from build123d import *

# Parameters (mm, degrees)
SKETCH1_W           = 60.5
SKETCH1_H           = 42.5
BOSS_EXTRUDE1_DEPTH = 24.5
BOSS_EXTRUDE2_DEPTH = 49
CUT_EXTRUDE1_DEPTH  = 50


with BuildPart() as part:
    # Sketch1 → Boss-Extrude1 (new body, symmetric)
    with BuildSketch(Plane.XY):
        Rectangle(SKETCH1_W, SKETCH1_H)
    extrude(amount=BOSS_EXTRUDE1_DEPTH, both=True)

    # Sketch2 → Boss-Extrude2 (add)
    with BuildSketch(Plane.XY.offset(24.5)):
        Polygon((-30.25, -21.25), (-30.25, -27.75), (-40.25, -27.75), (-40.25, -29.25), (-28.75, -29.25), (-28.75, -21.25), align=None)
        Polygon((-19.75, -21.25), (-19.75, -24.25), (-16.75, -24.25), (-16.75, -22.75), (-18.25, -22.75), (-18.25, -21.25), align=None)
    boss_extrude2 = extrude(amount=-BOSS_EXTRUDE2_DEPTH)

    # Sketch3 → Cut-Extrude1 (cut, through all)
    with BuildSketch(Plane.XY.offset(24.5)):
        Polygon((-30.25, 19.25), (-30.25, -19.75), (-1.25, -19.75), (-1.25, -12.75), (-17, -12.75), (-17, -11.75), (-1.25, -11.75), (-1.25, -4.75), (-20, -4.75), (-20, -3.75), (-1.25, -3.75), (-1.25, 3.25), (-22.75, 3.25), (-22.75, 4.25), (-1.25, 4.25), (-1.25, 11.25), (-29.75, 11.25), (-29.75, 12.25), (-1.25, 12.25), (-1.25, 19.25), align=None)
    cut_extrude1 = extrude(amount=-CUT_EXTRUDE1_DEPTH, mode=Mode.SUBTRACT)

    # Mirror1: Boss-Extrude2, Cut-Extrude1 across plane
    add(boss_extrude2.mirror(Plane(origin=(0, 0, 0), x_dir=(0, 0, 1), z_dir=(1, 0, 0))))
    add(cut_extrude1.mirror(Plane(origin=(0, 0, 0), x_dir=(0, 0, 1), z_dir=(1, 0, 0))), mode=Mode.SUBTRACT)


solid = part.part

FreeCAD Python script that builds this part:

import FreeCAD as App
import Part
import Sketcher

V = App.Vector
Q = App.Units.Quantity

doc = App.newDocument("Part")
body = doc.addObject("PartDesign::Body", "Body")

# Sketch on XY plane
sketch1 = body.newObject("Sketcher::SketchObject", "Sketch")
sketch1.AttachmentSupport = (doc.getObject("XY_Plane"), [""])
sketch1.MapMode = "FlatFace"
sketch1.addGeometry(Part.LineSegment(V(-30.25, 21.25, 0), V(-30.25, -21.25, 0)), False)
sketch1.addGeometry(Part.LineSegment(V(-30.25, -21.25, 0), V(30.25, -21.25, 0)), False)
sketch1.addGeometry(Part.LineSegment(V(30.25, -21.25, 0), V(30.25, 21.25, 0)), False)
sketch1.addGeometry(Part.LineSegment(V(30.25, 21.25, 0), V(-30.25, 21.25, 0)), False)
sketch1.addConstraint(Sketcher.Constraint("Coincident", 0, 2, 1, 1))
sketch1.addConstraint(Sketcher.Constraint("Coincident", 1, 2, 2, 1))
sketch1.addConstraint(Sketcher.Constraint("Coincident", 2, 2, 3, 1))
sketch1.addConstraint(Sketcher.Constraint("Coincident", 3, 2, 0, 1))
sketch1.addConstraint(Sketcher.Constraint("Vertical", 0))
sketch1.addConstraint(Sketcher.Constraint("Horizontal", 1))
sketch1.addConstraint(Sketcher.Constraint("Vertical", 2))
sketch1.addConstraint(Sketcher.Constraint("Horizontal", 3))
sketch1.addConstraint(Sketcher.Constraint("Symmetric", 0, 2, 2, 2, -1, 1))
sketch1.addConstraint(Sketcher.Constraint("DistanceX", 1, 1, 1, 2, Q("60.5 mm")))
sketch1.addConstraint(Sketcher.Constraint("DistanceY", 0, 2, 0, 1, Q("42.5 mm")))
pad1 = body.newObject("PartDesign::Pad", "Pad")
pad1.Profile = sketch1
pad1.Length = 49
pad1.Midplane = True

# Sketch on XY plane
sketch2 = body.newObject("Sketcher::SketchObject", "Sketch001")
sketch2.AttachmentSupport = (doc.getObject("XY_Plane"), [""])
sketch2.MapMode = "FlatFace"
sketch2.AttachmentOffset = App.Placement(V(0, 0, 24.5), App.Rotation())
sketch2.addGeometry(Part.LineSegment(V(-30.25, -21.25, 0), V(-30.25, -27.75, 0)), False)
sketch2.addGeometry(Part.LineSegment(V(-30.25, -27.75, 0), V(-40.25, -27.75, 0)), False)
sketch2.addGeometry(Part.LineSegment(V(-40.25, -27.75, 0), V(-40.25, -29.25, 0)), False)
sketch2.addGeometry(Part.LineSegment(V(-40.25, -29.25, 0), V(-28.75, -29.25, 0)), False)
sketch2.addGeometry(Part.LineSegment(V(-28.75, -29.25, 0), V(-28.75, -21.25, 0)), False)
sketch2.addGeometry(Part.LineSegment(V(-28.75, -21.25, 0), V(-30.25, -21.25, 0)), False)
sketch2.addGeometry(Part.LineSegment(V(-19.75, -21.25, 0), V(-19.75, -24.25, 0)), False)
sketch2.addGeometry(Part.LineSegment(V(-19.75, -24.25, 0), V(-16.75, -24.25, 0)), False)
sketch2.addGeometry(Part.LineSegment(V(-16.75, -24.25, 0), V(-16.75, -22.75, 0)), False)
sketch2.addGeometry(Part.LineSegment(V(-16.75, -22.75, 0), V(-18.25, -22.75, 0)), False)
sketch2.addGeometry(Part.LineSegment(V(-18.25, -22.75, 0), V(-18.25, -21.25, 0)), False)
sketch2.addGeometry(Part.LineSegment(V(-18.25, -21.25, 0), V(-19.75, -21.25, 0)), False)
sketch2.addConstraint(Sketcher.Constraint("Coincident", 0, 2, 1, 1))
sketch2.addConstraint(Sketcher.Constraint("Coincident", 1, 2, 2, 1))
sketch2.addConstraint(Sketcher.Constraint("Coincident", 2, 2, 3, 1))
sketch2.addConstraint(Sketcher.Constraint("Coincident", 3, 2, 4, 1))
sketch2.addConstraint(Sketcher.Constraint("Coincident", 4, 2, 5, 1))
sketch2.addConstraint(Sketcher.Constraint("Coincident", 5, 2, 0, 1))
sketch2.addConstraint(Sketcher.Constraint("Coincident", 6, 2, 7, 1))
sketch2.addConstraint(Sketcher.Constraint("Coincident", 7, 2, 8, 1))
sketch2.addConstraint(Sketcher.Constraint("Coincident", 8, 2, 9, 1))
sketch2.addConstraint(Sketcher.Constraint("Coincident", 9, 2, 10, 1))
sketch2.addConstraint(Sketcher.Constraint("Coincident", 10, 2, 11, 1))
sketch2.addConstraint(Sketcher.Constraint("Coincident", 11, 2, 6, 1))
sketch2.addConstraint(Sketcher.Constraint("Vertical", 0))
sketch2.addConstraint(Sketcher.Constraint("Horizontal", 1))
sketch2.addConstraint(Sketcher.Constraint("Vertical", 2))
sketch2.addConstraint(Sketcher.Constraint("Horizontal", 3))
sketch2.addConstraint(Sketcher.Constraint("Vertical", 4))
sketch2.addConstraint(Sketcher.Constraint("Horizontal", 5))
sketch2.addConstraint(Sketcher.Constraint("Vertical", 6))
sketch2.addConstraint(Sketcher.Constraint("Horizontal", 7))
sketch2.addConstraint(Sketcher.Constraint("Vertical", 8))
sketch2.addConstraint(Sketcher.Constraint("Horizontal", 9))
sketch2.addConstraint(Sketcher.Constraint("Vertical", 10))
sketch2.addConstraint(Sketcher.Constraint("Horizontal", 11))
sketch2.addConstraint(Sketcher.Constraint("Horizontal", 5, 2, 10, 2))
sketch2.addConstraint(Sketcher.Constraint("Equal", 5, 9))
sketch2.addConstraint(Sketcher.Constraint("Equal", 9, 11))
sketch2.addConstraint(Sketcher.Constraint("Equal", 11, 2))
sketch2.addConstraint(Sketcher.Constraint("Equal", 7, 6))
sketch2.addConstraint(Sketcher.Constraint("Equal", 2, 8))
sketch2.addConstraint(Sketcher.Constraint("DistanceX", 1, 2, 1, 1, Q("10 mm")))
sketch2.addConstraint(Sketcher.Constraint("DistanceX", 7, 1, 7, 2, Q("3 mm")))
sketch2.addConstraint(Sketcher.Constraint("DistanceY", 4, 1, 4, 2, Q("8 mm")))
sketch2.addConstraint(Sketcher.Constraint("DistanceX", 4, 2, 6, 2, Q("9 mm")))
sketch2.addConstraint(Sketcher.Constraint("DistanceX", 0, 2, -1, 1, Q("30.25 mm")))
sketch2.addConstraint(Sketcher.Constraint("DistanceY", 0, 2, -1, 1, Q("27.75 mm")))
pad2 = body.newObject("PartDesign::Pad", "Pad001")
pad2.Profile = sketch2
pad2.Length = 49
pad2.Reversed = True

# Sketch on XY plane
sketch3 = body.newObject("Sketcher::SketchObject", "Sketch002")
sketch3.AttachmentSupport = (doc.getObject("XY_Plane"), [""])
sketch3.MapMode = "FlatFace"
sketch3.AttachmentOffset = App.Placement(V(0, 0, 24.5), App.Rotation())
sketch3.addGeometry(Part.LineSegment(V(-30.25, 19.25, 0), V(-30.25, -19.75, 0)), False)
sketch3.addGeometry(Part.LineSegment(V(-30.25, -19.75, 0), V(-1.25, -19.75, 0)), False)
sketch3.addGeometry(Part.LineSegment(V(-1.25, -19.75, 0), V(-1.25, -12.75, 0)), False)
sketch3.addGeometry(Part.LineSegment(V(-1.25, -12.75, 0), V(-17, -12.75, 0)), False)
sketch3.addGeometry(Part.LineSegment(V(-17, -12.75, 0), V(-17, -11.75, 0)), False)
sketch3.addGeometry(Part.LineSegment(V(-17, -11.75, 0), V(-1.25, -11.75, 0)), False)
sketch3.addGeometry(Part.LineSegment(V(-1.25, -11.75, 0), V(-1.25, -4.75, 0)), False)
sketch3.addGeometry(Part.LineSegment(V(-1.25, -4.75, 0), V(-20, -4.75, 0)), False)
sketch3.addGeometry(Part.LineSegment(V(-20, -4.75, 0), V(-20, -3.75, 0)), False)
sketch3.addGeometry(Part.LineSegment(V(-20, -3.75, 0), V(-1.25, -3.75, 0)), False)
sketch3.addGeometry(Part.LineSegment(V(-1.25, -3.75, 0), V(-1.25, 3.25, 0)), False)
sketch3.addGeometry(Part.LineSegment(V(-1.25, 3.25, 0), V(-22.75, 3.25, 0)), False)
sketch3.addGeometry(Part.LineSegment(V(-22.75, 3.25, 0), V(-22.75, 4.25, 0)), False)
sketch3.addGeometry(Part.LineSegment(V(-22.75, 4.25, 0), V(-1.25, 4.25, 0)), False)
sketch3.addGeometry(Part.LineSegment(V(-1.25, 4.25, 0), V(-1.25, 11.25, 0)), False)
sketch3.addGeometry(Part.LineSegment(V(-1.25, 11.25, 0), V(-29.75, 11.25, 0)), False)
sketch3.addGeometry(Part.LineSegment(V(-29.75, 11.25, 0), V(-29.75, 12.25, 0)), False)
sketch3.addGeometry(Part.LineSegment(V(-29.75, 12.25, 0), V(-1.25, 12.25, 0)), False)
sketch3.addGeometry(Part.LineSegment(V(-1.25, 12.25, 0), V(-1.25, 19.25, 0)), False)
sketch3.addGeometry(Part.LineSegment(V(-1.25, 19.25, 0), V(-30.25, 19.25, 0)), False)
sketch3.addConstraint(Sketcher.Constraint("Coincident", 0, 2, 1, 1))
sketch3.addConstraint(Sketcher.Constraint("Coincident", 1, 2, 2, 1))
sketch3.addConstraint(Sketcher.Constraint("Coincident", 2, 2, 3, 1))
sketch3.addConstraint(Sketcher.Constraint("Coincident", 3, 2, 4, 1))
sketch3.addConstraint(Sketcher.Constraint("Coincident", 4, 2, 5, 1))
sketch3.addConstraint(Sketcher.Constraint("Coincident", 5, 2, 6, 1))
sketch3.addConstraint(Sketcher.Constraint("Coincident", 6, 2, 7, 1))
sketch3.addConstraint(Sketcher.Constraint("Coincident", 7, 2, 8, 1))
sketch3.addConstraint(Sketcher.Constraint("Coincident", 8, 2, 9, 1))
sketch3.addConstraint(Sketcher.Constraint("Coincident", 9, 2, 10, 1))
sketch3.addConstraint(Sketcher.Constraint("Coincident", 10, 2, 11, 1))
sketch3.addConstraint(Sketcher.Constraint("Coincident", 11, 2, 12, 1))
sketch3.addConstraint(Sketcher.Constraint("Coincident", 12, 2, 13, 1))
sketch3.addConstraint(Sketcher.Constraint("Coincident", 13, 2, 14, 1))
sketch3.addConstraint(Sketcher.Constraint("Coincident", 14, 2, 15, 1))
sketch3.addConstraint(Sketcher.Constraint("Coincident", 15, 2, 16, 1))
sketch3.addConstraint(Sketcher.Constraint("Coincident", 16, 2, 17, 1))
sketch3.addConstraint(Sketcher.Constraint("Coincident", 17, 2, 18, 1))
sketch3.addConstraint(Sketcher.Constraint("Coincident", 18, 2, 19, 1))
sketch3.addConstraint(Sketcher.Constraint("Coincident", 19, 2, 0, 1))
sketch3.addConstraint(Sketcher.Constraint("Vertical", 0))
sketch3.addConstraint(Sketcher.Constraint("Horizontal", 1))
sketch3.addConstraint(Sketcher.Constraint("Vertical", 2))
sketch3.addConstraint(Sketcher.Constraint("Horizontal", 3))
sketch3.addConstraint(Sketcher.Constraint("Vertical", 4))
sketch3.addConstraint(Sketcher.Constraint("Horizontal", 5))
sketch3.addConstraint(Sketcher.Constraint("Vertical", 6))
sketch3.addConstraint(Sketcher.Constraint("Horizontal", 7))
sketch3.addConstraint(Sketcher.Constraint("Vertical", 8))
sketch3.addConstraint(Sketcher.Constraint("Horizontal", 9))
sketch3.addConstraint(Sketcher.Constraint("Vertical", 10))
sketch3.addConstraint(Sketcher.Constraint("Horizontal", 11))
sketch3.addConstraint(Sketcher.Constraint("Vertical", 12))
sketch3.addConstraint(Sketcher.Constraint("Horizontal", 13))
sketch3.addConstraint(Sketcher.Constraint("Vertical", 14))
sketch3.addConstraint(Sketcher.Constraint("Horizontal", 15))
sketch3.addConstraint(Sketcher.Constraint("Vertical", 16))
sketch3.addConstraint(Sketcher.Constraint("Horizontal", 17))
sketch3.addConstraint(Sketcher.Constraint("Vertical", 18))
sketch3.addConstraint(Sketcher.Constraint("Horizontal", 19))
sketch3.addConstraint(Sketcher.Constraint("Vertical", 2, 2, 5, 2))
sketch3.addConstraint(Sketcher.Constraint("Vertical", 6, 2, 9, 2))
sketch3.addConstraint(Sketcher.Constraint("Vertical", 10, 2, 13, 2))
sketch3.addConstraint(Sketcher.Constraint("Vertical", 14, 2, 17, 2))
sketch3.addConstraint(Sketcher.Constraint("Equal", 2, 6))
sketch3.addConstraint(Sketcher.Constraint("Equal", 4, 8))
sketch3.addConstraint(Sketcher.Constraint("Equal", 6, 10))
sketch3.addConstraint(Sketcher.Constraint("Equal", 8, 12))
sketch3.addConstraint(Sketcher.Constraint("Equal", 10, 14))
sketch3.addConstraint(Sketcher.Constraint("Equal", 12, 16))
sketch3.addConstraint(Sketcher.Constraint("Equal", 14, 18))
sketch3.addConstraint(Sketcher.Constraint("DistanceX", 1, 1, 1, 2, Q("29 mm")))
sketch3.addConstraint(Sketcher.Constraint("DistanceY", 0, 2, 0, 1, Q("39 mm")))
sketch3.addConstraint(Sketcher.Constraint("DistanceY", 2, 1, 2, 2, Q("7 mm")))
sketch3.addConstraint(Sketcher.Constraint("DistanceX", 11, 2, 11, 1, Q("21.5 mm")))
sketch3.addConstraint(Sketcher.Constraint("DistanceX", 15, 2, 15, 1, Q("28.5 mm")))
sketch3.addConstraint(Sketcher.Constraint("DistanceX", 3, 2, -1, 1, Q("17 mm")))
sketch3.addConstraint(Sketcher.Constraint("DistanceX", 7, 2, -1, 1, Q("20 mm")))
sketch3.addConstraint(Sketcher.Constraint("DistanceX", 3, 2, 3, 1, Q("15.75 mm")))
sketch3.addConstraint(Sketcher.Constraint("DistanceY", 0, 2, -1, 1, Q("19.75 mm")))
pocket1 = body.newObject("PartDesign::Pocket", "Pocket")
pocket1.Profile = sketch3
pocket1.Type = "ThroughAll"
doc.recompute()

mirrored = body.newObject("PartDesign::Mirrored", "Mirrored")
mirrored.Originals = [pad2, pocket1]
mirrored.MirrorPlane = (doc.getObject("YZ_Plane"), [""])
body.Tip = mirrored

doc.recompute()
